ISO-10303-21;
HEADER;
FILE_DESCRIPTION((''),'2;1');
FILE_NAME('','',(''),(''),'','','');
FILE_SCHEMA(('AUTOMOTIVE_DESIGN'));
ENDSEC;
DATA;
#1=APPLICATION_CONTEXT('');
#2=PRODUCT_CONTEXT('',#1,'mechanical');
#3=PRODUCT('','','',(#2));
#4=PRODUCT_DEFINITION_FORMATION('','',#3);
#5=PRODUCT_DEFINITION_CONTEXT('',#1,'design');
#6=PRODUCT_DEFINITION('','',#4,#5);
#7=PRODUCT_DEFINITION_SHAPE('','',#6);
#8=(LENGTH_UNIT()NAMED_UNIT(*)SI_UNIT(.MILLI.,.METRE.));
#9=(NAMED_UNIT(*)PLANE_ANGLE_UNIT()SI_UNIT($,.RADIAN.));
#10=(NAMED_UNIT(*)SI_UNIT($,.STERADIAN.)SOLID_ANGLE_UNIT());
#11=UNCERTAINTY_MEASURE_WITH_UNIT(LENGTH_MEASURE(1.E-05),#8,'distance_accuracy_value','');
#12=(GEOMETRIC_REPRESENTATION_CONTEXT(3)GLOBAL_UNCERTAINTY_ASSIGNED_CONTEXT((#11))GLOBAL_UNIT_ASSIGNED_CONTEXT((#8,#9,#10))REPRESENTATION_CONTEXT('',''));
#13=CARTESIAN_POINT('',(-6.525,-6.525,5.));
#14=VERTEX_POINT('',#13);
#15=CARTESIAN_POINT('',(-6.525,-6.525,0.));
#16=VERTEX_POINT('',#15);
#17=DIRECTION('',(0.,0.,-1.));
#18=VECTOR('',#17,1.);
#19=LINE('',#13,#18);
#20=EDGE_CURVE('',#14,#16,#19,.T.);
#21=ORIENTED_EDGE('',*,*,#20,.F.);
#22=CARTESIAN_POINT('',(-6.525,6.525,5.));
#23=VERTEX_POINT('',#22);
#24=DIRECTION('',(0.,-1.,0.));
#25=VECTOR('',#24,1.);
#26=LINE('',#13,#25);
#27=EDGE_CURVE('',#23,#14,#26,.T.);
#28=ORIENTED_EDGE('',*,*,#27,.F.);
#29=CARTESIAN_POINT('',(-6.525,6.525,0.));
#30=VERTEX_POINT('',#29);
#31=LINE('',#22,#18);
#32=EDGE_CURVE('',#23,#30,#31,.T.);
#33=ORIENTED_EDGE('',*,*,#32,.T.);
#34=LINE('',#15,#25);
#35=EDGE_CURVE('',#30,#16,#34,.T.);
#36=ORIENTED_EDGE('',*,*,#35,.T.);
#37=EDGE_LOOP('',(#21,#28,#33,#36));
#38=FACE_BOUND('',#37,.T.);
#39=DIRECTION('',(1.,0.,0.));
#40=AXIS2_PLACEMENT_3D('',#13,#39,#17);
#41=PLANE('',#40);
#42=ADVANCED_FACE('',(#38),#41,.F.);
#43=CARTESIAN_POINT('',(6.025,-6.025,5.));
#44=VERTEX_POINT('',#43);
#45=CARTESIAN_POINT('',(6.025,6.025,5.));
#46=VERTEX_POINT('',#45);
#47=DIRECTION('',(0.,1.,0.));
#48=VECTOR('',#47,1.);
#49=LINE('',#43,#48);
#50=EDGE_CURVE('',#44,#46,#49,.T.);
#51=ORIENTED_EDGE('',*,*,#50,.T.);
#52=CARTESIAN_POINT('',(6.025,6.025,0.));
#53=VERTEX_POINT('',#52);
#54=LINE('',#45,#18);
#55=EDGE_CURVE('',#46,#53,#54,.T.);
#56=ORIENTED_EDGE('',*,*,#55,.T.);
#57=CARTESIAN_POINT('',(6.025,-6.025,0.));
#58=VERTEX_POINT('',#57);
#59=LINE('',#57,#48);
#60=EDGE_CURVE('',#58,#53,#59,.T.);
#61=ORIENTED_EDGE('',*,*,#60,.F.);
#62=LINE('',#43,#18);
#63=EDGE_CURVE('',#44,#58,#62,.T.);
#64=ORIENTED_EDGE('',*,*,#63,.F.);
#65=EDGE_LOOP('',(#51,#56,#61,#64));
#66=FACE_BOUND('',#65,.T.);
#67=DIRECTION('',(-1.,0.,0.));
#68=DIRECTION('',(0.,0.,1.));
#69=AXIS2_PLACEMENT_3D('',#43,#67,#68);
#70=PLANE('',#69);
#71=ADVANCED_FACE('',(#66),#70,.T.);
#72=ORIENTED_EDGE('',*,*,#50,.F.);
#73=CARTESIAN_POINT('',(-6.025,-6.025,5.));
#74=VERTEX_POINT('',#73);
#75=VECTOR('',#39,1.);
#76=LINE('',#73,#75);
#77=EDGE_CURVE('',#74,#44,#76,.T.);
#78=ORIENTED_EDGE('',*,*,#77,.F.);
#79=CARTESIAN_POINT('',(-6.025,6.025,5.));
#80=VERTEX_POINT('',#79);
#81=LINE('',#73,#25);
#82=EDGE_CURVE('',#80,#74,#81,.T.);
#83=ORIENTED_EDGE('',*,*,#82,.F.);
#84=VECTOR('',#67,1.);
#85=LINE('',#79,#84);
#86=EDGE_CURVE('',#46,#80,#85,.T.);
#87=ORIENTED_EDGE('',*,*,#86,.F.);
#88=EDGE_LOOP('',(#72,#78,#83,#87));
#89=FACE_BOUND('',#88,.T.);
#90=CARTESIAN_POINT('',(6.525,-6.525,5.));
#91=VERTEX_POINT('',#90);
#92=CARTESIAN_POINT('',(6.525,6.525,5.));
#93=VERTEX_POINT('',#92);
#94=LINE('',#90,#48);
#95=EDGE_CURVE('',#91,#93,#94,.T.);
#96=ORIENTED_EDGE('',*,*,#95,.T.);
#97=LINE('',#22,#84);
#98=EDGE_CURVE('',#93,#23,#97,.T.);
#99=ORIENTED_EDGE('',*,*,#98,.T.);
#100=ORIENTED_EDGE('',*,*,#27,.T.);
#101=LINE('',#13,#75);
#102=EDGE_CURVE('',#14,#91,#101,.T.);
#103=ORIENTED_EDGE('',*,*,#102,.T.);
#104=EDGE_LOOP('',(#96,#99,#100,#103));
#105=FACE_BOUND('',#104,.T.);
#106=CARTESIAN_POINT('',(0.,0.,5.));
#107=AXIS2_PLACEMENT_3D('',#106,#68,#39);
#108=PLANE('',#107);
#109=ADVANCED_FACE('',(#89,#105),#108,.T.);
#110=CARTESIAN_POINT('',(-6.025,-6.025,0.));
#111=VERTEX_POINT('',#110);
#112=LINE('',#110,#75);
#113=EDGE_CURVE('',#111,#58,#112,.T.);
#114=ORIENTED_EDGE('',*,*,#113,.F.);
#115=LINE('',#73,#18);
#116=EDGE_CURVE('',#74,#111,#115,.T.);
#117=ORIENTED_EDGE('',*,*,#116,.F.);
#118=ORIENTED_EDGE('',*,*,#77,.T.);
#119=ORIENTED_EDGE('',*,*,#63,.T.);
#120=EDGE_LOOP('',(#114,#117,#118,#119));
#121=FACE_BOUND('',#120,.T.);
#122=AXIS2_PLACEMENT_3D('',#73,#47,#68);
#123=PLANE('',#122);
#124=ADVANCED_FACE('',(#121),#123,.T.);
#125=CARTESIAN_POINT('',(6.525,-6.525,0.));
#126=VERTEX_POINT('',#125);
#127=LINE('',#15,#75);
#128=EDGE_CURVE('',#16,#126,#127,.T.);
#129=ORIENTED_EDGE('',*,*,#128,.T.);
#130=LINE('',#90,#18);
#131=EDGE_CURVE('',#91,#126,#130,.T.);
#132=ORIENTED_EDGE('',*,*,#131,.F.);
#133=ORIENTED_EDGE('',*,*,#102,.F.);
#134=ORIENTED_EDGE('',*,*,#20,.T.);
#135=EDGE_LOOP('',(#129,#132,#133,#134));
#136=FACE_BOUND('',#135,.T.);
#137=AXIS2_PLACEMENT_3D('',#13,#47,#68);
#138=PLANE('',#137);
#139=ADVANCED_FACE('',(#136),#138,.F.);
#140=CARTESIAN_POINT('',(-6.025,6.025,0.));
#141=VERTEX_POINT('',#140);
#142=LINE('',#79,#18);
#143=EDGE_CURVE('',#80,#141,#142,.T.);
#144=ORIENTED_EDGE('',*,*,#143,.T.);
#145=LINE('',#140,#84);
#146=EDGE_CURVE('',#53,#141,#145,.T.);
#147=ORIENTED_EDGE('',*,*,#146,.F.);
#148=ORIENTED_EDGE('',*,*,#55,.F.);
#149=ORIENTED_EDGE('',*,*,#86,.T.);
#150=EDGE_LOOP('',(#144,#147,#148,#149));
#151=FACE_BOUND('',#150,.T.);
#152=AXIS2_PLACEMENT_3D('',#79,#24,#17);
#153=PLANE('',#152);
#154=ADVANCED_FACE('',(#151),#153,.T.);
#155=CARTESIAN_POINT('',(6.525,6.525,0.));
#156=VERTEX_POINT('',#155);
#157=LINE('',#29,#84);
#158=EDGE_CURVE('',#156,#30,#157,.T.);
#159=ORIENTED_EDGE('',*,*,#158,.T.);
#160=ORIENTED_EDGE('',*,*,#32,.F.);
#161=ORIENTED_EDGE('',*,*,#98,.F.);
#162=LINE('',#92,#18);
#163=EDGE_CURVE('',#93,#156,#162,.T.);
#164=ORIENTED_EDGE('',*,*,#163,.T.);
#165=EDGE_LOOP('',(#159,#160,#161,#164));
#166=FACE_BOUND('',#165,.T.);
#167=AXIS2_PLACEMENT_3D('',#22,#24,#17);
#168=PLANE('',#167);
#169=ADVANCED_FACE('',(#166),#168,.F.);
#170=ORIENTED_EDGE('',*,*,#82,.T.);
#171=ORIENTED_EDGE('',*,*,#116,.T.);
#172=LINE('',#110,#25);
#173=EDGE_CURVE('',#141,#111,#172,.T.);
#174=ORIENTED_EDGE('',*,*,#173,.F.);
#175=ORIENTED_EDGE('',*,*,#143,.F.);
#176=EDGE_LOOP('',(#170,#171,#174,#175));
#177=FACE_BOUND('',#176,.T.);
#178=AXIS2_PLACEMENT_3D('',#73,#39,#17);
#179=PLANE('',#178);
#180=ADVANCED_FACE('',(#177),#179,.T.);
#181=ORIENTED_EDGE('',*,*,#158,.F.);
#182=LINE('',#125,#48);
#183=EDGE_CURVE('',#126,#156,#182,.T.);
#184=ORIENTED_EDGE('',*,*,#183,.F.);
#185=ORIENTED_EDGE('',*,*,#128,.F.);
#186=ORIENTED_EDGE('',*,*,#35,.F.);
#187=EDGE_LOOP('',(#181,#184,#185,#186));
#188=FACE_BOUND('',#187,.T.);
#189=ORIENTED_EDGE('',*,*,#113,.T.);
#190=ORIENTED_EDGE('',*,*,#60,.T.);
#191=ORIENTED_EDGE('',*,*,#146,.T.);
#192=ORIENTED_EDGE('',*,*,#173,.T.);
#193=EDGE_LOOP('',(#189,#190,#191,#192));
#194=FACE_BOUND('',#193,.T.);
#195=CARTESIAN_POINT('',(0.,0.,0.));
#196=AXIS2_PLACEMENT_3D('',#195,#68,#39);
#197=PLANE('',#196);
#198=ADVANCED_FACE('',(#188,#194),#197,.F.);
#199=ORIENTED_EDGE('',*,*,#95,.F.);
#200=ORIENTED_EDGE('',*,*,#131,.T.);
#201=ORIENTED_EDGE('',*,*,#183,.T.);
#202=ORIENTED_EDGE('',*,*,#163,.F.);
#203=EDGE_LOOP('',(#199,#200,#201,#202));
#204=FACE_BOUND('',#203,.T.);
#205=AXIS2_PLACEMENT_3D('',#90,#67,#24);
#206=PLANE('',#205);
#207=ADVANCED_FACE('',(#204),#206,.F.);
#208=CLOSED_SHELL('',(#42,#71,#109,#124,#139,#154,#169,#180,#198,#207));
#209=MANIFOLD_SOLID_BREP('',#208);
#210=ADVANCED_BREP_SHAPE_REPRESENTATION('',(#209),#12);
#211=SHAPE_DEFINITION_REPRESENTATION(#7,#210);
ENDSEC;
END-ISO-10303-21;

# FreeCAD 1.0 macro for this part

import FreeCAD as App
import Part
import Sketcher

V = App.Vector
Q = App.Units.Quantity


def add_polygon(sketch, points):
    """Adds a closed chain of lines whose ends are joined by coincident constraints."""
    first, n = sketch.GeometryCount, len(points)
    for a, b in zip(points, points[1:] + points[:1]):
        sketch.addGeometry(Part.LineSegment(App.Vector(*a, 0), App.Vector(*b, 0)), False)
    for i in range(n):
        sketch.addConstraint(Sketcher.Constraint("Coincident", first + i, 2, first + (i + 1) % n, 1))

doc = App.newDocument("Part")
body = doc.addObject("PartDesign::Body", "Body")

sketch1 = body.newObject("Sketcher::SketchObject", "Sketch")
sketch1.AttachmentSupport = (doc.getObject("XY_Plane"), [""])
sketch1.MapMode = "FlatFace"
add_polygon(sketch1, [(-7, 7), (-7, -7), (7, -7), (7, 7)])
add_polygon(sketch1, [(6, -6), (-6, -6), (-6, 6), (6, 6)])
sketch1.addConstraint(Sketcher.Constraint("Vertical", 0))
sketch1.addConstraint(Sketcher.Constraint("Horizontal", 1))
sketch1.addConstraint(Sketcher.Constraint("Vertical", 2))
sketch1.addConstraint(Sketcher.Constraint("Horizontal", 3))
sketch1.addConstraint(Sketcher.Constraint("Horizontal", 4))
sketch1.addConstraint(Sketcher.Constraint("Vertical", 5))
sketch1.addConstraint(Sketcher.Constraint("Horizontal", 6))
sketch1.addConstraint(Sketcher.Constraint("Vertical", 7))
sketch1.addConstraint(Sketcher.Constraint("Symmetric", 0, 2, 2, 2, -1, 1))
sketch1.addConstraint(Sketcher.Constraint("Symmetric", 4, 2, 6, 2, -1, 1))
sketch1.addConstraint(Sketcher.Constraint("Equal", 3, 0))
sketch1.addConstraint(Sketcher.Constraint("Equal", 6, 5))
sketch1.addConstraint(Sketcher.Constraint("DistanceX", 1, 1, 1, 2, Q("13.05 mm")))
sketch1.addConstraint(Sketcher.Constraint("DistanceX", 4, 2, 4, 1, Q("12.05 mm")))
pad1 = body.newObject("PartDesign::Pad", "Pad")
pad1.Profile = sketch1
pad1.Length = 5

doc.recompute()
